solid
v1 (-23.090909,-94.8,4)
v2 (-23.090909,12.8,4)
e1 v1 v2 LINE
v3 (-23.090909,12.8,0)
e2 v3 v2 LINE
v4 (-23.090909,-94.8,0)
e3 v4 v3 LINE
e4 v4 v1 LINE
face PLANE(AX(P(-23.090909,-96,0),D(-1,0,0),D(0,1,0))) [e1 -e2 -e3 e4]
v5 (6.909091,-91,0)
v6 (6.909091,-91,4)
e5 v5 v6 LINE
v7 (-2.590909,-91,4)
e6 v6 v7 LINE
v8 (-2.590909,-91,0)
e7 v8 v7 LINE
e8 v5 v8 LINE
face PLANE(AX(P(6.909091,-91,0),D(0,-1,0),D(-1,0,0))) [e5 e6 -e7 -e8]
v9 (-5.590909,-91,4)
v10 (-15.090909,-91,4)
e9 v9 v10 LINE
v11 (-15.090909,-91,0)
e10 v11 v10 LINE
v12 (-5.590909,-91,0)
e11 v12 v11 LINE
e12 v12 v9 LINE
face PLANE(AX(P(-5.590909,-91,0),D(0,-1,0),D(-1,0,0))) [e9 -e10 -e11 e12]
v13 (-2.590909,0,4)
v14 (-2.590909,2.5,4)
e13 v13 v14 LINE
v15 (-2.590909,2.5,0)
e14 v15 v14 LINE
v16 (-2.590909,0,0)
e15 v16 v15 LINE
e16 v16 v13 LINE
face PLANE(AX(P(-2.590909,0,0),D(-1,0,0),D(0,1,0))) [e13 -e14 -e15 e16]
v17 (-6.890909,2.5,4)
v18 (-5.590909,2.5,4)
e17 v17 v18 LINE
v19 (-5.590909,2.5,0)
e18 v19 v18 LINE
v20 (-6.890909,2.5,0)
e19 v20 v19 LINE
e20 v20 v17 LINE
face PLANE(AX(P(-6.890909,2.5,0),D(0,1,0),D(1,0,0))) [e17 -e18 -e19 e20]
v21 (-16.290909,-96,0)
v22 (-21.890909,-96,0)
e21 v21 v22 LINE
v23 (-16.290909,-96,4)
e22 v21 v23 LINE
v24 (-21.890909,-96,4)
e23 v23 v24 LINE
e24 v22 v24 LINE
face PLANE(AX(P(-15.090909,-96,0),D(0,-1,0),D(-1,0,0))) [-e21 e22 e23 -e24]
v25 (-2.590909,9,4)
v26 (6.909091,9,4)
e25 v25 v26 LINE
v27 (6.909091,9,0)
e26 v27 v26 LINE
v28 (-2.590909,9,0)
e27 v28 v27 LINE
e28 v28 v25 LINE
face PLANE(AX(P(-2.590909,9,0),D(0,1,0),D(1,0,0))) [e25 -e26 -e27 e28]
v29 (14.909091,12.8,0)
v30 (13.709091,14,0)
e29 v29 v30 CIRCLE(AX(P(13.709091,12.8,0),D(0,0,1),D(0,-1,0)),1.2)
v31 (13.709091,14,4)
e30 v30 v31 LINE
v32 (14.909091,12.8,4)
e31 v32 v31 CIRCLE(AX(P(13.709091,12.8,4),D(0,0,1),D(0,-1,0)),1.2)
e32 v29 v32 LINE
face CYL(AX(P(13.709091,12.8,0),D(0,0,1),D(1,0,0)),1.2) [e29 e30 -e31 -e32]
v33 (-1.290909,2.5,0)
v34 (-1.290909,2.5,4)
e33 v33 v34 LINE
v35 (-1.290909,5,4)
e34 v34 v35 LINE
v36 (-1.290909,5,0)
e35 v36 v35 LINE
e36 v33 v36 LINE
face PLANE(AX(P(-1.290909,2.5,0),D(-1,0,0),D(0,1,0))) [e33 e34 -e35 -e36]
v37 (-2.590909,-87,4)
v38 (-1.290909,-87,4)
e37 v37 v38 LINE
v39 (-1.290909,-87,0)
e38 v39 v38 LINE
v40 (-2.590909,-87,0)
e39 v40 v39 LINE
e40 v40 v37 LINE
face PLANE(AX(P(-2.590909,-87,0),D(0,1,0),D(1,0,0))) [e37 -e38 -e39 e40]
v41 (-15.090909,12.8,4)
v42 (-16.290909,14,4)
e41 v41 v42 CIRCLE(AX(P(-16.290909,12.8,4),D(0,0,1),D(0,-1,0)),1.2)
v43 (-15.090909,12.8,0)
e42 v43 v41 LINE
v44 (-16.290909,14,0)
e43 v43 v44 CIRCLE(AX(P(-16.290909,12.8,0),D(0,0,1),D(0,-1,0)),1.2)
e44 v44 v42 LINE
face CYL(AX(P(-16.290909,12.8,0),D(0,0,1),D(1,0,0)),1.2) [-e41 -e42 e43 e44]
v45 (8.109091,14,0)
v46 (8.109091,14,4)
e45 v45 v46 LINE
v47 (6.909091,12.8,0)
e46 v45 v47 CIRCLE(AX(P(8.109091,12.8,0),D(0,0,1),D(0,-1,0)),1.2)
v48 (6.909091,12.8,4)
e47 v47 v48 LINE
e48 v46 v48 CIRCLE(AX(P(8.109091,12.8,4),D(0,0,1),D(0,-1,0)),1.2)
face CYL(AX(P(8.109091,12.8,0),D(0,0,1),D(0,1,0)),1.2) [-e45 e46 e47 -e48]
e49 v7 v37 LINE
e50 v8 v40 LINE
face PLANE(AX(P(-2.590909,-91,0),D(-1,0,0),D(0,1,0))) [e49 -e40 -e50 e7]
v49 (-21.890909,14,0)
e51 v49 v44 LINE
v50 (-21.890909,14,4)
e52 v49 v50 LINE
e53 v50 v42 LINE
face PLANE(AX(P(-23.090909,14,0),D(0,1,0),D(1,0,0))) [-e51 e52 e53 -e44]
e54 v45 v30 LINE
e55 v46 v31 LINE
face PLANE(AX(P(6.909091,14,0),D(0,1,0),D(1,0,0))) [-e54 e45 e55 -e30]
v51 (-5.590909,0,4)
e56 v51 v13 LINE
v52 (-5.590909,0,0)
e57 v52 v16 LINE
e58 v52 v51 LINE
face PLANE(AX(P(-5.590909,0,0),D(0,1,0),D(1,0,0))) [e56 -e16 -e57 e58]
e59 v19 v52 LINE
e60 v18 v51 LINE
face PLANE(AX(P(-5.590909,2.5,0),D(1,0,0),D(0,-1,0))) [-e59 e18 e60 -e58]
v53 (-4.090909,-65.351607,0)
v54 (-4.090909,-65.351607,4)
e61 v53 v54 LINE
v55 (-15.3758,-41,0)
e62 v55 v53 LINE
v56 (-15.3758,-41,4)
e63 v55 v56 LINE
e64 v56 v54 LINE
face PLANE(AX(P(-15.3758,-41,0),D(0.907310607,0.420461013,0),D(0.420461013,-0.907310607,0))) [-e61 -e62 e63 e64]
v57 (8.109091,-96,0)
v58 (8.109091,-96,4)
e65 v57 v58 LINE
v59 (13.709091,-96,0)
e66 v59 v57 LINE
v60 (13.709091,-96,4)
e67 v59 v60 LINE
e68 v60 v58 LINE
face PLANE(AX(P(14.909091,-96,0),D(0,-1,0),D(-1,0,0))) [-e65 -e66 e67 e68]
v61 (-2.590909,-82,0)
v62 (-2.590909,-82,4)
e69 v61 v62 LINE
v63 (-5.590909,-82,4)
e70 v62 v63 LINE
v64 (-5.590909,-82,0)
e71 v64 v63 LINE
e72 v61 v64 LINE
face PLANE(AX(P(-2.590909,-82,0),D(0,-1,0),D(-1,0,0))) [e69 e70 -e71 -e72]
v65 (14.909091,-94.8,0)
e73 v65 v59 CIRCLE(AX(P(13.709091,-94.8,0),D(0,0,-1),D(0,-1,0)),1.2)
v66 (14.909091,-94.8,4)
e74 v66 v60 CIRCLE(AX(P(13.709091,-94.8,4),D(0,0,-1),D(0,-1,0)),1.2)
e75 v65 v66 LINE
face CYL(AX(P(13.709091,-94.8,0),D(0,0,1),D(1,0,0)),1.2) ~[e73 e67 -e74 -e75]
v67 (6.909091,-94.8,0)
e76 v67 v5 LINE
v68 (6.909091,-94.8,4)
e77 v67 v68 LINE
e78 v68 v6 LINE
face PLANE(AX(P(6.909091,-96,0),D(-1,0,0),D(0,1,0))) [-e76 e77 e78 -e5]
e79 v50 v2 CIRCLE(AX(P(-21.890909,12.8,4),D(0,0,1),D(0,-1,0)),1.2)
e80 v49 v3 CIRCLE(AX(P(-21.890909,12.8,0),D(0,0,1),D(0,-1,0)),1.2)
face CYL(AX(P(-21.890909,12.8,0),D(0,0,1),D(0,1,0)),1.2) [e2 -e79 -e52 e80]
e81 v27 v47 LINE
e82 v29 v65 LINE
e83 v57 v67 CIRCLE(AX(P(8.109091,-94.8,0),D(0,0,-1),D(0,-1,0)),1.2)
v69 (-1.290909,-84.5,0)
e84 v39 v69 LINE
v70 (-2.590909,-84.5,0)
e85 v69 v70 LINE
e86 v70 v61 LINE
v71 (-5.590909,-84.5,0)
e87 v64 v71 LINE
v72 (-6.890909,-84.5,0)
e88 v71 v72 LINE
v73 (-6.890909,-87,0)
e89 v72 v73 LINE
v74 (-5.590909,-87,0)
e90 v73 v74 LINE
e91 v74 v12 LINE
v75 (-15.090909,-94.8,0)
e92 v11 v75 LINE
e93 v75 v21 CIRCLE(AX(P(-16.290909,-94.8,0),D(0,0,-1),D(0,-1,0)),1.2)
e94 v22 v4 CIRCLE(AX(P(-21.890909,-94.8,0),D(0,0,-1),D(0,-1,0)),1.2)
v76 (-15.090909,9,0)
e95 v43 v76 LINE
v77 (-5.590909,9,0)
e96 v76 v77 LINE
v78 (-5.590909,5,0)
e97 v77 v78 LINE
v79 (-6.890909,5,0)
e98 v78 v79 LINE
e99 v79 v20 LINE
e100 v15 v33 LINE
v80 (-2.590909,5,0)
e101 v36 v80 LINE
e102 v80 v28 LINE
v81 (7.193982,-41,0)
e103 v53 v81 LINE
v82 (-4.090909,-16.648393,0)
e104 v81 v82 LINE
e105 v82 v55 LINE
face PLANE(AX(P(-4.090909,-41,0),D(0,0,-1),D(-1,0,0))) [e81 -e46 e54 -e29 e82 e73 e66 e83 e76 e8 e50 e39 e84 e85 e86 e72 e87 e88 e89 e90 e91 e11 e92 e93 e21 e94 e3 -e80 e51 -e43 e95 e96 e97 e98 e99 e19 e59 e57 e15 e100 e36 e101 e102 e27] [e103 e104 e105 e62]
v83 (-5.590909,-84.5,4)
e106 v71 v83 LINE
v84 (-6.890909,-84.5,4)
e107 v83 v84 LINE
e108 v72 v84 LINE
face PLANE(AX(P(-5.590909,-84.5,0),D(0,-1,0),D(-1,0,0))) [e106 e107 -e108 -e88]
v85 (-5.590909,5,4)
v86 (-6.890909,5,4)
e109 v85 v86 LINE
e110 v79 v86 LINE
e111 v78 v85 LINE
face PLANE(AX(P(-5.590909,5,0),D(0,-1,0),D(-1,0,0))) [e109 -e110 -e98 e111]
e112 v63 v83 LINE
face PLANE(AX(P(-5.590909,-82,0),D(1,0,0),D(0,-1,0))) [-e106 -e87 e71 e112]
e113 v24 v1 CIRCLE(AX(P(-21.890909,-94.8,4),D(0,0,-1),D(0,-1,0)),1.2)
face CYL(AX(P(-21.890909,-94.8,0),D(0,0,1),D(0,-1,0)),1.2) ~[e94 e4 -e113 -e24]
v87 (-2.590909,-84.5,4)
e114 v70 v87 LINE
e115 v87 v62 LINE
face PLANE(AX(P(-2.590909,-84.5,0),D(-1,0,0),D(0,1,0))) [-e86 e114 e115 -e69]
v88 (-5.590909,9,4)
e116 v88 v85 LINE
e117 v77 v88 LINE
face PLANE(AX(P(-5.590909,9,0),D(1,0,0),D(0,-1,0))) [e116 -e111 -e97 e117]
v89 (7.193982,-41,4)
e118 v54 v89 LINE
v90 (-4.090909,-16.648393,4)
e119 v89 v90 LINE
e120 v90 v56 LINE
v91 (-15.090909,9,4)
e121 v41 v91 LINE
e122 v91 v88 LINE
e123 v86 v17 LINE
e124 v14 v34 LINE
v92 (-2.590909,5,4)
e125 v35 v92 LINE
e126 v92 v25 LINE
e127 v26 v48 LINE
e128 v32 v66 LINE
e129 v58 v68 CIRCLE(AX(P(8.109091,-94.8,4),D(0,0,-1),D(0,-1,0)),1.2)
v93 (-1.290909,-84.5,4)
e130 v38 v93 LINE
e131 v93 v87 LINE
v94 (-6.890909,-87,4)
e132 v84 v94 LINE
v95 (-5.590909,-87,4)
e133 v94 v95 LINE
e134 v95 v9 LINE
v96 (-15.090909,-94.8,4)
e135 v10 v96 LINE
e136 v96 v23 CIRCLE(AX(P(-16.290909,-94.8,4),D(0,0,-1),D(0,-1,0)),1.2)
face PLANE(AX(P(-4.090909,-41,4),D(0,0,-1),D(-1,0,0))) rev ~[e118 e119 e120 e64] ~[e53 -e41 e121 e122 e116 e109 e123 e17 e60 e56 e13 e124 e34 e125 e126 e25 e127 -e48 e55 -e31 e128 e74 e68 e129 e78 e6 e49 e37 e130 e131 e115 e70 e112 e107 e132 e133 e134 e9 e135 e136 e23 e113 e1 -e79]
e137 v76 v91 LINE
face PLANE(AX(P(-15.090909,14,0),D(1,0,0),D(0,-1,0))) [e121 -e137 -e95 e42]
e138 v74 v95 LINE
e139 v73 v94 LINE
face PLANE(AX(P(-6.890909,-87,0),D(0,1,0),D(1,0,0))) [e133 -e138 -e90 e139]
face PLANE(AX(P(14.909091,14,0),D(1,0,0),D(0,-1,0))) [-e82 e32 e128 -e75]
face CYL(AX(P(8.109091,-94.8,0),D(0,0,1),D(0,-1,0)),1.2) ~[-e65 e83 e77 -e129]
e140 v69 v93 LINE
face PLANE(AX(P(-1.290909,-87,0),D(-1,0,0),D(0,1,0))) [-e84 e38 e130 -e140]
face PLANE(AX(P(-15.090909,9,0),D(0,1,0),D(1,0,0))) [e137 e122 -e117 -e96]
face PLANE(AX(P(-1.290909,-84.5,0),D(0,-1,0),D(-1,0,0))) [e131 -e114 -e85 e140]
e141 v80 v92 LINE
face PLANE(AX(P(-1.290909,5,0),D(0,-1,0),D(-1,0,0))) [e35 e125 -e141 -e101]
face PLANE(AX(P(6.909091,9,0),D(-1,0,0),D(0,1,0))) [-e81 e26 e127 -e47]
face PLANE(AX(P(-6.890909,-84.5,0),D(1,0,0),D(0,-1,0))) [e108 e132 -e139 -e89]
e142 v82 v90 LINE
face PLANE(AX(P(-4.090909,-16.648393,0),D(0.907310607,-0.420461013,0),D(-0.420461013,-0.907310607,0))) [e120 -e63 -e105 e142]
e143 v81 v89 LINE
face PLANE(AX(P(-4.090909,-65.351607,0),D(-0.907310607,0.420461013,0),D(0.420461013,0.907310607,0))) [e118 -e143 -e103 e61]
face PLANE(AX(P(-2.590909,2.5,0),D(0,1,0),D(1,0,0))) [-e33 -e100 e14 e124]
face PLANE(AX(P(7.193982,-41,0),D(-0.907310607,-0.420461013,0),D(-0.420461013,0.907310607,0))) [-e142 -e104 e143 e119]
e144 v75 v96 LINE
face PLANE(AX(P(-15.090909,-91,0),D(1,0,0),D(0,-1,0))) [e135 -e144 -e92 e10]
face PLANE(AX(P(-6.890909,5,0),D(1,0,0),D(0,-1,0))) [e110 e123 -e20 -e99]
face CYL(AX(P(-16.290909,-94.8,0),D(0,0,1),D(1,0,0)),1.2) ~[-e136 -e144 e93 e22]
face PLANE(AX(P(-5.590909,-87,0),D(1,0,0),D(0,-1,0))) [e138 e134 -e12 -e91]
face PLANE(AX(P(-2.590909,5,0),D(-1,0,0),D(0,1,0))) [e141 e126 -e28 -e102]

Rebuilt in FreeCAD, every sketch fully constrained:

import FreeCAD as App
import Part
import Sketcher
from FreeCAD import Vector
Q = App.Units.Quantity


def edges_at(feature, points):
    """Names of the edges that pass closest to the given points."""
    edges = feature.Shape.Edges
    near = lambda p: min(range(len(edges)), key=lambda i: edges[i].distToShape(Part.Vertex(*p))[0])
    return sorted({f"Edge{near(p) + 1}" for p in points})

doc = App.newDocument("Part")
body = doc.addObject("PartDesign::Body", "Body")

# Sketch on XY plane
sketch1 = body.newObject("Sketcher::SketchObject", "Sketch")
sketch1.AttachmentSupport = (doc.getObject("XY_Plane"), [""])
sketch1.MapMode = "FlatFace"
sketch1.addGeometry(Part.LineSegment(Vector(14.9, -96, 0), Vector(14.9, 14, 0)), False)
sketch1.addGeometry(Part.LineSegment(Vector(14.9, 14, 0), Vector(6.9, 14, 0)), False)
sketch1.addGeometry(Part.LineSegment(Vector(6.9, 14, 0), Vector(6.9, 9, 0)), False)
sketch1.addGeometry(Part.LineSegment(Vector(6.9, 9, 0), Vector(-2.6, 9, 0)), False)
sketch1.addGeometry(Part.LineSegment(Vector(-2.6, 9, 0), Vector(-2.6, 5, 0)), False)
sketch1.addGeometry(Part.LineSegment(Vector(-2.6, 5, 0), Vector(-1.3, 5, 0)), False)
sketch1.addGeometry(Part.LineSegment(Vector(-1.3, 5, 0), Vector(-1.3, 2.5, 0)), False)
sketch1.addGeometry(Part.LineSegment(Vector(-1.3, 2.5, 0), Vector(-2.6, 2.5, 0)), False)
sketch1.addGeometry(Part.LineSegment(Vector(-2.6, 2.5, 0), Vector(-2.6, 0, 0)), False)
sketch1.addGeometry(Part.LineSegment(Vector(-2.6, 0, 0), Vector(-5.6, 0, 0)), False)
sketch1.addGeometry(Part.LineSegment(Vector(-5.6, 0, 0), Vector(-5.6, 2.5, 0)), False)
sketch1.addGeometry(Part.LineSegment(Vector(-5.6, 2.5, 0), Vector(-6.9, 2.5, 0)), False)
sketch1.addGeometry(Part.LineSegment(Vector(-6.9, 2.5, 0), Vector(-6.9, 5, 0)), False)
sketch1.addGeometry(Part.LineSegment(Vector(-6.9, 5, 0), Vector(-5.6, 5, 0)), False)
sketch1.addGeometry(Part.LineSegment(Vector(-5.6, 5, 0), Vector(-5.6, 9, 0)), False)
sketch1.addGeometry(Part.LineSegment(Vector(-5.6, 9, 0), Vector(-15.1, 9, 0)), False)
sketch1.addGeometry(Part.LineSegment(Vector(-15.1, 9, 0), Vector(-15.1, 14, 0)), False)
sketch1.addGeometry(Part.LineSegment(Vector(-15.1, 14, 0), Vector(-23.1, 14, 0)), False)
sketch1.addGeometry(Part.LineSegment(Vector(-23.1, 14, 0), Vector(-23.1, -96, 0)), False)
sketch1.addGeometry(Part.LineSegment(Vector(-23.1, -96, 0), Vector(-15.1, -96, 0)), False)
sketch1.addGeometry(Part.LineSegment(Vector(-15.1, -96, 0), Vector(-15.1, -91, 0)), False)
sketch1.addGeometry(Part.LineSegment(Vector(-15.1, -91, 0), Vector(-5.6, -91, 0)), False)
sketch1.addGeometry(Part.LineSegment(Vector(-5.6, -91, 0), Vector(-5.6, -87, 0)), False)
sketch1.addGeometry(Part.LineSegment(Vector(-5.6, -87, 0), Vector(-6.9, -87, 0)), False)
sketch1.addGeometry(Part.LineSegment(Vector(-6.9, -87, 0), Vector(-6.9, -84.5, 0)), False)
sketch1.addGeometry(Part.LineSegment(Vector(-6.9, -84.5, 0), Vector(-5.6, -84.5, 0)), False)
sketch1.addGeometry(Part.LineSegment(Vector(-5.6, -84.5, 0), Vector(-5.6, -82, 0)), False)
sketch1.addGeometry(Part.LineSegment(Vector(-5.6, -82, 0), Vector(-2.6, -82, 0)), False)
sketch1.addGeometry(Part.LineSegment(Vector(-2.6, -82, 0), Vector(-2.6, -84.5, 0)), False)
sketch1.addGeometry(Part.LineSegment(Vector(-2.6, -84.5, 0), Vector(-1.3, -84.5, 0)), False)
sketch1.addGeometry(Part.LineSegment(Vector(-1.3, -84.5, 0), Vector(-1.3, -87, 0)), False)
sketch1.addGeometry(Part.LineSegment(Vector(-1.3, -87, 0), Vector(-2.6, -87, 0)), False)
sketch1.addGeometry(Part.LineSegment(Vector(-2.6, -87, 0), Vector(-2.6, -91, 0)), False)
sketch1.addGeometry(Part.LineSegment(Vector(-2.6, -91, 0), Vector(6.9, -91, 0)), False)
sketch1.addGeometry(Part.LineSegment(Vector(6.9, -91, 0), Vector(6.9, -96, 0)), False)
sketch1.addGeometry(Part.LineSegment(Vector(6.9, -96, 0), Vector(14.9, -96, 0)), False)
sketch1.addGeometry(Part.LineSegment(Vector(-4.1, -16.6, 0), Vector(7.2, -41, 0)), False)
sketch1.addGeometry(Part.LineSegment(Vector(7.2, -41, 0), Vector(-4.1, -65.4, 0)), False)
sketch1.addGeometry(Part.LineSegment(Vector(-4.1, -65.4, 0), Vector(-15.4, -41, 0)), False)
sketch1.addGeometry(Part.LineSegment(Vector(-15.4, -41, 0), Vector(-4.1, -16.6, 0)), False)
sketch1.addConstraint(Sketcher.Constraint("Coincident", 0, 2, 1, 1))
sketch1.addConstraint(Sketcher.Constraint("Coincident", 1, 2, 2, 1))
sketch1.addConstraint(Sketcher.Constraint("Coincident", 2, 2, 3, 1))
sketch1.addConstraint(Sketcher.Constraint("Coincident", 3, 2, 4, 1))
sketch1.addConstraint(Sketcher.Constraint("Coincident", 4, 2, 5, 1))
sketch1.addConstraint(Sketcher.Constraint("Coincident", 5, 2, 6, 1))
sketch1.addConstraint(Sketcher.Constraint("Coincident", 6, 2, 7, 1))
sketch1.addConstraint(Sketcher.Constraint("Coincident", 7, 2, 8, 1))
sketch1.addConstraint(Sketcher.Constraint("Coincident", 8, 2, 9, 1))
sketch1.addConstraint(Sketcher.Constraint("Coincident", 9, 2, 10, 1))
sketch1.addConstraint(Sketcher.Constraint("Coincident", 10, 2, 11, 1))
sketch1.addConstraint(Sketcher.Constraint("Coincident", 11, 2, 12, 1))
sketch1.addConstraint(Sketcher.Constraint("Coincident", 12, 2, 13, 1))
sketch1.addConstraint(Sketcher.Constraint("Coincident", 13, 2, 14, 1))
sketch1.addConstraint(Sketcher.Constraint("Coincident", 14, 2, 15, 1))
sketch1.addConstraint(Sketcher.Constraint("Coincident", 15, 2, 16, 1))
sketch1.addConstraint(Sketcher.Constraint("Coincident", 16, 2, 17, 1))
sketch1.addConstraint(Sketcher.Constraint("Coincident", 17, 2, 18, 1))
sketch1.addConstraint(Sketcher.Constraint("Coincident", 18, 2, 19, 1))
sketch1.addConstraint(Sketcher.Constraint("Coincident", 19, 2, 20, 1))
sketch1.addConstraint(Sketcher.Constraint("Coincident", 20, 2, 21, 1))
sketch1.addConstraint(Sketcher.Constraint("Coincident", 21, 2, 22, 1))
sketch1.addConstraint(Sketcher.Constraint("Coincident", 22, 2, 23, 1))
sketch1.addConstraint(Sketcher.Constraint("Coincident", 23, 2, 24, 1))
sketch1.addConstraint(Sketcher.Constraint("Coincident", 24, 2, 25, 1))
sketch1.addConstraint(Sketcher.Constraint("Coincident", 25, 2, 26, 1))
sketch1.addConstraint(Sketcher.Constraint("Coincident", 26, 2, 27, 1))
sketch1.addConstraint(Sketcher.Constraint("Coincident", 27, 2, 28, 1))
sketch1.addConstraint(Sketcher.Constraint("Coincident", 28, 2, 29, 1))
sketch1.addConstraint(Sketcher.Constraint("Coincident", 29, 2, 30, 1))
sketch1.addConstraint(Sketcher.Constraint("Coincident", 30, 2, 31, 1))
sketch1.addConstraint(Sketcher.Constraint("Coincident", 31, 2, 32, 1))
sketch1.addConstraint(Sketcher.Constraint("Coincident", 32, 2, 33, 1))
sketch1.addConstraint(Sketcher.Constraint("Coincident", 33, 2, 34, 1))
sketch1.addConstraint(Sketcher.Constraint("Coincident", 34, 2, 35, 1))
sketch1.addConstraint(Sketcher.Constraint("Coincident", 35, 2, 0, 1))
sketch1.addConstraint(Sketcher.Constraint("Coincident", 36, 2, 37, 1))
sketch1.addConstraint(Sketcher.Constraint("Coincident", 37, 2, 38, 1))
sketch1.addConstraint(Sketcher.Constraint("Coincident", 38, 2, 39, 1))
sketch1.addConstraint(Sketcher.Constraint("Coincident", 39, 2, 36, 1))
sketch1.addConstraint(Sketcher.Constraint("Vertical", 0))
sketch1.addConstraint(Sketcher.Constraint("Horizontal", 1))
sketch1.addConstraint(Sketcher.Constraint("Vertical", 2))
sketch1.addConstraint(Sketcher.Constraint("Horizontal", 3))
sketch1.addConstraint(Sketcher.Constraint("Vertical", 4))
sketch1.addConstraint(Sketcher.Constraint("Horizontal", 5))
sketch1.addConstraint(Sketcher.Constraint("Vertical", 6))
sketch1.addConstraint(Sketcher.Constraint("Horizontal", 7))
sketch1.addConstraint(Sketcher.Constraint("Vertical", 8))
sketch1.addConstraint(Sketcher.Constraint("Horizontal", 9))
sketch1.addConstraint(Sketcher.Constraint("Vertical", 10))
sketch1.addConstraint(Sketcher.Constraint("Horizontal", 11))
sketch1.addConstraint(Sketcher.Constraint("Vertical", 12))
sketch1.addConstraint(Sketcher.Constraint("Horizontal", 13))
sketch1.addConstraint(Sketcher.Constraint("Vertical", 14))
sketch1.addConstraint(Sketcher.Constraint("Horizontal", 15))
sketch1.addConstraint(Sketcher.Constraint("Vertical", 16))
sketch1.addConstraint(Sketcher.Constraint("Horizontal", 17))
sketch1.addConstraint(Sketcher.Constraint("Vertical", 18))
sketch1.addConstraint(Sketcher.Constraint("Horizontal", 19))
sketch1.addConstraint(Sketcher.Constraint("Vertical", 20))
sketch1.addConstraint(Sketcher.Constraint("Horizontal", 21))
sketch1.addConstraint(Sketcher.Constraint("Vertical", 22))
sketch1.addConstraint(Sketcher.Constraint("Horizontal", 23))
sketch1.addConstraint(Sketcher.Constraint("Vertical", 24))
sketch1.addConstraint(Sketcher.Constraint("Horizontal", 25))
sketch1.addConstraint(Sketcher.Constraint("Vertical", 26))
sketch1.addConstraint(Sketcher.Constraint("Horizontal", 27))
sketch1.addConstraint(Sketcher.Constraint("Vertical", 28))
sketch1.addConstraint(Sketcher.Constraint("Horizontal", 29))
sketch1.addConstraint(Sketcher.Constraint("Vertical", 30))
sketch1.addConstraint(Sketcher.Constraint("Horizontal", 31))
sketch1.addConstraint(Sketcher.Constraint("Vertical", 32))
sketch1.addConstraint(Sketcher.Constraint("Horizontal", 33))
sketch1.addConstraint(Sketcher.Constraint("Vertical", 34))
sketch1.addConstraint(Sketcher.Constraint("Horizontal", 35))
sketch1.addConstraint(Sketcher.Constraint("PointOnObject", 8, 2, -1))
sketch1.addConstraint(Sketcher.Constraint("Parallel", 36, 38))
sketch1.addConstraint(Sketcher.Constraint("Parallel", 37, 39))
sketch1.addConstraint(Sketcher.Constraint("Horizontal", 7, 2, 10, 2))
sketch1.addConstraint(Sketcher.Constraint("Horizontal", 5, 2, 12, 2))
sketch1.addConstraint(Sketcher.Constraint("Horizontal", 3, 2, 14, 2))
sketch1.addConstraint(Sketcher.Constraint("Horizontal", 1, 2, 16, 2))
sketch1.addConstraint(Sketcher.Constraint("Horizontal", 25, 2, 28, 2))
sketch1.addConstraint(Sketcher.Constraint("Horizontal", 23, 2, 30, 2))
sketch1.addConstraint(Sketcher.Constraint("Horizontal", 21, 2, 32, 2))
sketch1.addConstraint(Sketcher.Constraint("Horizontal", 19, 2, 34, 2))
sketch1.addConstraint(Sketcher.Constraint("Horizontal", 36, 2, 38, 2))
sketch1.addConstraint(Sketcher.Constraint("Vertical", 4, 2, 7, 2))
sketch1.addConstraint(Sketcher.Constraint("Vertical", 10, 2, 13, 2))
sketch1.addConstraint(Sketcher.Constraint("Vertical", 16, 2, 19, 2))
sketch1.addConstraint(Sketcher.Constraint("Vertical", 14, 2, 21, 2))
sketch1.addConstraint(Sketcher.Constraint("Vertical", 12, 2, 23, 2))
sketch1.addConstraint(Sketcher.Constraint("Vertical", 22, 2, 25, 2))
sketch1.addConstraint(Sketcher.Constraint("Vertical", 8, 2, 27, 2))
sketch1.addConstraint(Sketcher.Constraint("Vertical", 6, 2, 29, 2))
sketch1.addConstraint(Sketcher.Constraint("Vertical", 28, 2, 31, 2))
sketch1.addConstraint(Sketcher.Constraint("Vertical", 2, 2, 33, 2))
sketch1.addConstraint(Sketcher.Constraint("Vertical", 37, 2, 39, 2))
sketch1.addConstraint(Sketcher.Constraint("Equal", 7, 11))
sketch1.addConstraint(Sketcher.Constraint("Equal", 3, 15))
sketch1.addConstraint(Sketcher.Constraint("Equal", 1, 17))
sketch1.addConstraint(Sketcher.Constraint("Equal", 6, 8))
sketch1.addConstraint(Sketcher.Constraint("Equal", 16, 20))
sketch1.addConstraint(Sketcher.Constraint("Equal", 14, 22))
sketch1.addConstraint(Sketcher.Constraint("Equal", 12, 24))
sketch1.addConstraint(Sketcher.Constraint("Equal", 24, 26))
sketch1.addConstraint(Sketcher.Constraint("DistanceX", 1, 2, 1, 1, Q("8 mm")))
sketch1.addConstraint(Sketcher.Constraint("DistanceX", 9, 2, 9, 1, Q("3 mm")))
sketch1.addConstraint(Sketcher.Constraint("DistanceY", 0, 1, 0, 2, Q("110 mm")))
sketch1.addConstraint(Sketcher.Constraint("DistanceY", 2, 2, 2, 1, Q("5 mm")))
sketch1.addConstraint(Sketcher.Constraint("DistanceY", 4, 2, 4, 1, Q("4 mm")))
sketch1.addConstraint(Sketcher.Constraint("DistanceX", 3, 2, 3, 1, Q("9.5 mm")))
sketch1.addConstraint(Sketcher.Constraint("DistanceX", 5, 1, 5, 2, Q("1.3 mm")))
sketch1.addConstraint(Sketcher.Constraint("DistanceY", 6, 2, 6, 1, Q("2.5 mm")))
sketch1.addConstraint(Sketcher.Constraint("DistanceY", 36, 2, -1, 1, Q("41 mm")))
sketch1.addConstraint(Sketcher.Constraint("DistanceX", 26, 2, 37, 2, Q("1.5 mm")))
sketch1.addConstraint(Sketcher.Constraint("DistanceX", 38, 2, -1, 1, Q("15.3758 mm")))
sketch1.addConstraint(Sketcher.Constraint("Distance", 36, Q("26.839329 mm")))
sketch1.addConstraint(Sketcher.Constraint("DistanceX", -1, 1, 0, 2, Q("14.909091 mm")))
pad1 = body.newObject("PartDesign::Pad", "Pad")
pad1.Profile = sketch1
pad1.Length = 4
doc.recompute()

fillet = body.newObject("PartDesign::Fillet", "Fillet")
fillet.Base = (pad1, edges_at(pad1, [
    (6.909, 14, 2),
    (14.909, 14, 2),
    (14.909, -96, 2),
    (6.909, -96, 2),
    (-15.091, -96, 2),
    (-23.091, -96, 2),
    (-23.091, 14, 2),
    (-15.091, 14, 2),
]))
fillet.Radius = 1.2

doc.recompute()
